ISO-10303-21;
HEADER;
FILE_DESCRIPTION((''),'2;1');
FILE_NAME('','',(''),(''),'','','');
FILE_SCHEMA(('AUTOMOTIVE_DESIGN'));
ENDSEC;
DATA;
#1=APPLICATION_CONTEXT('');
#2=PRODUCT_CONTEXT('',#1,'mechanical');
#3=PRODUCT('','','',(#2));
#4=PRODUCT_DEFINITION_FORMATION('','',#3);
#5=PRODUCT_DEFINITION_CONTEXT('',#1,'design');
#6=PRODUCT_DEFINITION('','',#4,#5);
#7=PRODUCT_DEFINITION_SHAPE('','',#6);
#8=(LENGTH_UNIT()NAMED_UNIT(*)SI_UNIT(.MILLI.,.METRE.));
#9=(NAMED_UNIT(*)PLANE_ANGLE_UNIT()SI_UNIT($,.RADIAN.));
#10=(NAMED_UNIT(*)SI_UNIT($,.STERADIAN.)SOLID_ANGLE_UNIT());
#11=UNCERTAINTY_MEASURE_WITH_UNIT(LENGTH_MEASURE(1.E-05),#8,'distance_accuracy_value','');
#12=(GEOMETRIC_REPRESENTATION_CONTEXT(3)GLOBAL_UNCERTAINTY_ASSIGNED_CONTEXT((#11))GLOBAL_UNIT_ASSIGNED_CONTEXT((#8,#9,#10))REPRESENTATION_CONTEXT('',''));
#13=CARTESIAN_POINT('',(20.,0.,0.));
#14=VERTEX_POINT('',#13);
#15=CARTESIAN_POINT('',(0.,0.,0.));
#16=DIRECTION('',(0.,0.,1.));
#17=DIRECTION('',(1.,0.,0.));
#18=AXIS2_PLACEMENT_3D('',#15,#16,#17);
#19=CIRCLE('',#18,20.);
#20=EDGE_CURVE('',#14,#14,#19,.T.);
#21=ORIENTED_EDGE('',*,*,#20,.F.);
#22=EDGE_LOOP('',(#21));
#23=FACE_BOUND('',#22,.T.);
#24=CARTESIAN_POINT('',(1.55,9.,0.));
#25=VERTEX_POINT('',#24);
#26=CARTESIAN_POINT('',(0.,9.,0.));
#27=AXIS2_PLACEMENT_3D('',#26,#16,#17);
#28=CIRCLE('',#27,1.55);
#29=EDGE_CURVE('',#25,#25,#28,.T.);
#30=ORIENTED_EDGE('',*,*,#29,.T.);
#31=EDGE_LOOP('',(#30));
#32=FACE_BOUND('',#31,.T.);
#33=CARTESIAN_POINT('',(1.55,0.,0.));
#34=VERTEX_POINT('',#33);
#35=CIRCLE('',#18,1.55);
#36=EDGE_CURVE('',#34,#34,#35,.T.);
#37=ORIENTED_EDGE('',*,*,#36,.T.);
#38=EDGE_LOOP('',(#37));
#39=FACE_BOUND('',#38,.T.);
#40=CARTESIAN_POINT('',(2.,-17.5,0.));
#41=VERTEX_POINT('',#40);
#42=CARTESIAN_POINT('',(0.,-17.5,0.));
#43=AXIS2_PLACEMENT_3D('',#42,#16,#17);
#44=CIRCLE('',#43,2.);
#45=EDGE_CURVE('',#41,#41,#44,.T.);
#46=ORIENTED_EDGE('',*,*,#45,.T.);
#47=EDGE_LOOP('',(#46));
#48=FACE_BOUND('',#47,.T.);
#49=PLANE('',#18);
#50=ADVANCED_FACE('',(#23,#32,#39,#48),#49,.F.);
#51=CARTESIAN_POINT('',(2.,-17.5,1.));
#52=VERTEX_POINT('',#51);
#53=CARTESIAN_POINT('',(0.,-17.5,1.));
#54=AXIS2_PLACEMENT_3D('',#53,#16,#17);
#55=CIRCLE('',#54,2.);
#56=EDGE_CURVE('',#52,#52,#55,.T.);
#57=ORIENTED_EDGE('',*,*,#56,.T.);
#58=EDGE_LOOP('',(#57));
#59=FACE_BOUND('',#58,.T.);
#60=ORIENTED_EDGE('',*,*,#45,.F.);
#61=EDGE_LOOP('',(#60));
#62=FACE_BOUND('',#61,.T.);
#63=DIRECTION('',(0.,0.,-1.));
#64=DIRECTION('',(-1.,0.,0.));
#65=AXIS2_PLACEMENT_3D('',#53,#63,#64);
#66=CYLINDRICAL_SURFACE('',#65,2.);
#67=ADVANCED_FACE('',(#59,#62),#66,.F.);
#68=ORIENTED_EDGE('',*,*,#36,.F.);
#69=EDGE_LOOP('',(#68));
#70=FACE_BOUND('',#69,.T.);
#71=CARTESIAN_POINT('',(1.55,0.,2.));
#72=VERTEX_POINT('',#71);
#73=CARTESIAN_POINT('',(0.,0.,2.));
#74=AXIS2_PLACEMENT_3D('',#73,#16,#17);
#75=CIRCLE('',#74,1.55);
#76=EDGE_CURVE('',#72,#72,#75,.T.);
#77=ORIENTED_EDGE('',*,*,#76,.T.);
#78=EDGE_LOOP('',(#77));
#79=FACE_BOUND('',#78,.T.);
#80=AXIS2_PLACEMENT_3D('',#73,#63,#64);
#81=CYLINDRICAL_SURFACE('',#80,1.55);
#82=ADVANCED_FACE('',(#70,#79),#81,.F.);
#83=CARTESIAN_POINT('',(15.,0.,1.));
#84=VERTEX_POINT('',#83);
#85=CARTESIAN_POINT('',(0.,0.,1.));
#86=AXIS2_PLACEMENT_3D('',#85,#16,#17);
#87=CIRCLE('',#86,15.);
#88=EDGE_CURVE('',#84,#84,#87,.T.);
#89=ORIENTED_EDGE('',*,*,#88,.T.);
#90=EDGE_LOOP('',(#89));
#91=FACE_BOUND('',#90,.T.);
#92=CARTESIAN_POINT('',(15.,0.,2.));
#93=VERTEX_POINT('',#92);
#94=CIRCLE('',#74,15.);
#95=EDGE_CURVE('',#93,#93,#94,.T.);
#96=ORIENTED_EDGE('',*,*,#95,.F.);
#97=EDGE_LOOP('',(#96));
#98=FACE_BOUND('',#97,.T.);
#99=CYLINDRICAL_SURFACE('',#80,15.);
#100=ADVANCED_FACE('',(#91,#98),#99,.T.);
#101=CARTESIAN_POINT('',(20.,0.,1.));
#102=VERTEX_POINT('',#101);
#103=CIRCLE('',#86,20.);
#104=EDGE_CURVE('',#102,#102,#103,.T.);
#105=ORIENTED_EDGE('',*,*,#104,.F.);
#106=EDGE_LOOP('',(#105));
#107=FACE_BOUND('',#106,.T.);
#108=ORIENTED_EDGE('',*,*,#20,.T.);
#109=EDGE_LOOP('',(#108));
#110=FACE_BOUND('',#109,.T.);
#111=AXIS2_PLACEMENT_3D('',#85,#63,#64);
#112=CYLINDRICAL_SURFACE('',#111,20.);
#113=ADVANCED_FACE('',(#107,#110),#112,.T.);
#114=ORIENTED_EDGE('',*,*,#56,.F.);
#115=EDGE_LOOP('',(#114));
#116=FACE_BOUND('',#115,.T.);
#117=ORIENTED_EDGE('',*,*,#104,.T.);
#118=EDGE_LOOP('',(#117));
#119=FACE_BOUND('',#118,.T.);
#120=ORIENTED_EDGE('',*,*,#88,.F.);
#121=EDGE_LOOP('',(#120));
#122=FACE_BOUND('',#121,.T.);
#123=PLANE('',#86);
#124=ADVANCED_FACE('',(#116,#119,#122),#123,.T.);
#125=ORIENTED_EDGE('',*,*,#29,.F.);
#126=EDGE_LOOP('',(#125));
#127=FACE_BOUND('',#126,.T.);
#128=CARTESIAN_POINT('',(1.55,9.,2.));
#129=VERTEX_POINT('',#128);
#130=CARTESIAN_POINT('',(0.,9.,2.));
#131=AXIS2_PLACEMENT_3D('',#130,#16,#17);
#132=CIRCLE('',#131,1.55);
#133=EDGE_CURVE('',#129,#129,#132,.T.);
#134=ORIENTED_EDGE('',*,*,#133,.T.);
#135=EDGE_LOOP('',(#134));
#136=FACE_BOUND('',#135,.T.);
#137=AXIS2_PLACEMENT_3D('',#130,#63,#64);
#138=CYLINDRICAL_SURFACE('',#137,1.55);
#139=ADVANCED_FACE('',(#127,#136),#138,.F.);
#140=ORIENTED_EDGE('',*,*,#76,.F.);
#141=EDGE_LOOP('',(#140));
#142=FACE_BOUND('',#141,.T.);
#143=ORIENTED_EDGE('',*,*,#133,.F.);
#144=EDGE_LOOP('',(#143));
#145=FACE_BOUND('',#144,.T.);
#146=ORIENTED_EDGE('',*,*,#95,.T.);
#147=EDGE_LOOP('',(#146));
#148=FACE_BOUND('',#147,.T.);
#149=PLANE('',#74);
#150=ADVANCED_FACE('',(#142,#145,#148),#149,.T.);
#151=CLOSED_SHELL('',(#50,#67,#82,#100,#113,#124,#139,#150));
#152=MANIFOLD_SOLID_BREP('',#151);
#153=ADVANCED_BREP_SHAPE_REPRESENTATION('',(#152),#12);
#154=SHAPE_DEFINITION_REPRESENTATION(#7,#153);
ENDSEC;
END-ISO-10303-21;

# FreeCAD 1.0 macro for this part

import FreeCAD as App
import Part
import Sketcher
from FreeCAD import Vector

doc = App.newDocument("Part")
body = doc.addObject("PartDesign::Body", "Body")

# Sketch on XY plane
sketch1 = doc.addObject("Sketcher::SketchObject", "Sketch")
body.addObject(sketch1)
sketch1.AttachmentSupport = (doc.XY_Plane, [""])
sketch1.MapMode = "FlatFace"
sketch1.addGeometry([
    Part.Circle(Vector(0, 0, 0), Vector(0, 0, 1), 20),
    Part.Circle(Vector(0, -17.5, 0), Vector(0, 0, 1), 2),
    Part.Circle(Vector(0, 0, 0), Vector(0, 0, 1), 15),
], False)
sketch1.addConstraint([
    Sketcher.Constraint("Coincident", 0, 3, -1, 1),
    Sketcher.Constraint("Coincident", 2, 3, -1, 1),
    Sketcher.Constraint("PointOnObject", 1, 3, -2),
    Sketcher.Constraint("Diameter", 0, 40.0),
    Sketcher.Constraint("Diameter", 1, 4.0),
    Sketcher.Constraint("Diameter", 2, 30.0),
    Sketcher.Constraint("DistanceY", 1, 3, -1, 1, 17.5),
])
pad1 = doc.addObject("PartDesign::Pad", "Pad")
body.addObject(pad1)
pad1.Profile = sketch1
pad1.Length = 1

# Sketch on XY plane
sketch2 = doc.addObject("Sketcher::SketchObject", "Sketch001")
body.addObject(sketch2)
sketch2.AttachmentSupport = (doc.XY_Plane, [""])
sketch2.MapMode = "FlatFace"
sketch2.addGeometry([
    Part.Circle(Vector(0, 0, 0), Vector(0, 0, 1), 15),
    Part.Circle(Vector(0, 0, 0), Vector(0, 0, 1), 1.6),
    Part.Circle(Vector(0, 9, 0), Vector(0, 0, 1), 1.6),
], False)
sketch2.addConstraint([
    Sketcher.Constraint("Coincident", 0, 3, -1, 1),
    Sketcher.Constraint("Coincident", 1, 3, -1, 1),
    Sketcher.Constraint("Equal", 1, 2),
    Sketcher.Constraint("PointOnObject", 2, 3, -2),
    Sketcher.Constraint("Diameter", 0, 30.0),
    Sketcher.Constraint("Diameter", 1, 3.1),
    Sketcher.Constraint("DistanceY", -1, 1, 2, 3, 9.0),
])
pad2 = doc.addObject("PartDesign::Pad", "Pad001")
body.addObject(pad2)
pad2.Profile = sketch2
pad2.Length = 2

doc.recompute()
